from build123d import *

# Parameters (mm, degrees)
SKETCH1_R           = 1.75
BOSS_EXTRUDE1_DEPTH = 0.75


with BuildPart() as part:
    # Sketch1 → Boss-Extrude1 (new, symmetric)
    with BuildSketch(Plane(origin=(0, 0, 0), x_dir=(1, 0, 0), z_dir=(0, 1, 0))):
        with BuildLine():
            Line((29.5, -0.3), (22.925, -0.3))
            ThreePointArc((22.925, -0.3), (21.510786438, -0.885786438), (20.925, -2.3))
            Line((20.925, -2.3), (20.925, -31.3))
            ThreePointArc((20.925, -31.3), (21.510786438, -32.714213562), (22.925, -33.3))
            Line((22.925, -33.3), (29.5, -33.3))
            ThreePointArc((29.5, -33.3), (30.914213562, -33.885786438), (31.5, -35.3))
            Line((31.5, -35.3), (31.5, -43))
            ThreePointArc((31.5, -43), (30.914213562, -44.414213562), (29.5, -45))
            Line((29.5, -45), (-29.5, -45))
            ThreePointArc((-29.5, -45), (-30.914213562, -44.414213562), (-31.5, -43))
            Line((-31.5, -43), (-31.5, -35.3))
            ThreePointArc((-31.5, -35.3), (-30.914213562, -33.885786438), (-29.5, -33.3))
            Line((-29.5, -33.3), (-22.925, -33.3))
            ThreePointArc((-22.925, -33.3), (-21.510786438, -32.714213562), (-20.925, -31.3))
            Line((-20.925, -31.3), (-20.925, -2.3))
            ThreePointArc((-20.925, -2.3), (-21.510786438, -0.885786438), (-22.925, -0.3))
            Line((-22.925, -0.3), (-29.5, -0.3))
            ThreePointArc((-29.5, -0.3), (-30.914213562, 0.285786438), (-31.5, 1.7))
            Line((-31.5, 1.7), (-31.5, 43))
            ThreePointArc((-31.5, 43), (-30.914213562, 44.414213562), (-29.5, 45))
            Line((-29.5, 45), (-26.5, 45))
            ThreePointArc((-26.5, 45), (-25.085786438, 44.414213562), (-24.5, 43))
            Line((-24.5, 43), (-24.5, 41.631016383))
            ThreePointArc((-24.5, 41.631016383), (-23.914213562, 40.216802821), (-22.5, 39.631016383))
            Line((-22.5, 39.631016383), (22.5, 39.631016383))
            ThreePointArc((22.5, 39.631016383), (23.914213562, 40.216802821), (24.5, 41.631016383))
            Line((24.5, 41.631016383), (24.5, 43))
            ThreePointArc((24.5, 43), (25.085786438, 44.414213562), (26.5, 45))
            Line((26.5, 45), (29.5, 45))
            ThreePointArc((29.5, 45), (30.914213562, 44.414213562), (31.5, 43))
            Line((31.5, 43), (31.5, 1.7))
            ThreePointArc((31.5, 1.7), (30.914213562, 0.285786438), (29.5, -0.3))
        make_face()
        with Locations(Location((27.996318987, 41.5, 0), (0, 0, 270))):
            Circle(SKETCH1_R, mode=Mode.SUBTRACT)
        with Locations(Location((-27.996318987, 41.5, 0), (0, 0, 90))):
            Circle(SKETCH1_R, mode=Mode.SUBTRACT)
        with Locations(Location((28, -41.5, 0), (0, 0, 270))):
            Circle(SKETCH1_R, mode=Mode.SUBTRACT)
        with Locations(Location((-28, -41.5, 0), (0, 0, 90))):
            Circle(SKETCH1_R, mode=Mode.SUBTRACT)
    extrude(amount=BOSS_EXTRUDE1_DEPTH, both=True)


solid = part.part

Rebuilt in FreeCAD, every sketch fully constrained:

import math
import FreeCAD as App
import Part
import Sketcher

doc = App.newDocument("Part")
body = doc.addObject("PartDesign::Body", "Body")

sketch1 = doc.addObject("Sketcher::SketchObject", "Sketch")
body.addObject(sketch1)
sketch1.AttachmentSupport = (doc.XZ_Plane, [""])
sketch1.MapMode = "FlatFace"
sketch1.addGeometry(Part.LineSegment(App.Vector(22.9, 0.3, 0), App.Vector(29.5, 0.3, 0)), False)
sketch1.addGeometry(Part.ArcOfCircle(Part.Circle(App.Vector(29.5, -1.7, 0), App.Vector(0, 0, 1), 2), math.radians(0), math.radians(90)), False)
sketch1.addGeometry(Part.LineSegment(App.Vector(31.5, -1.7, 0), App.Vector(31.5, -43, 0)), False)
sketch1.addGeometry(Part.ArcOfCircle(Part.Circle(App.Vector(29.5, -43, 0), App.Vector(0, 0, 1), 2), math.radians(-90), math.radians(0)), False)
sketch1.addGeometry(Part.LineSegment(App.Vector(29.5, -45, 0), App.Vector(26.5, -45, 0)), False)
sketch1.addGeometry(Part.ArcOfCircle(Part.Circle(App.Vector(26.5, -43, 0), App.Vector(0, 0, 1), 2), math.radians(-180), math.radians(-90)), False)
sketch1.addGeometry(Part.LineSegment(App.Vector(24.5, -43, 0), App.Vector(24.5, -41.6, 0)), False)
sketch1.addGeometry(Part.ArcOfCircle(Part.Circle(App.Vector(22.5, -41.6, 0), App.Vector(0, 0, 1), 2), math.radians(0), math.radians(90)), False)
sketch1.addGeometry(Part.LineSegment(App.Vector(22.5, -39.6, 0), App.Vector(-22.5, -39.6, 0)), False)
sketch1.addGeometry(Part.ArcOfCircle(Part.Circle(App.Vector(-22.5, -41.6, 0), App.Vector(0, 0, 1), 2), math.radians(90), math.radians(180)), False)
sketch1.addGeometry(Part.LineSegment(App.Vector(-24.5, -41.6, 0), App.Vector(-24.5, -43, 0)), False)
sketch1.addGeometry(Part.ArcOfCircle(Part.Circle(App.Vector(-26.5, -43, 0), App.Vector(0, 0, 1), 2), math.radians(-90), math.radians(0)), False)
sketch1.addGeometry(Part.LineSegment(App.Vector(-26.5, -45, 0), App.Vector(-29.5, -45, 0)), False)
sketch1.addGeometry(Part.ArcOfCircle(Part.Circle(App.Vector(-29.5, -43, 0), App.Vector(0, 0, 1), 2), math.radians(-180), math.radians(-90)), False)
sketch1.addGeometry(Part.LineSegment(App.Vector(-31.5, -43, 0), App.Vector(-31.5, -1.7, 0)), False)
sketch1.addGeometry(Part.ArcOfCircle(Part.Circle(App.Vector(-29.5, -1.7, 0), App.Vector(0, 0, 1), 2), math.radians(90), math.radians(180)), False)
sketch1.addGeometry(Part.LineSegment(App.Vector(-29.5, 0.3, 0), App.Vector(-22.9, 0.3, 0)), False)
sketch1.addGeometry(Part.ArcOfCircle(Part.Circle(App.Vector(-22.9, 2.3, 0), App.Vector(0, 0, 1), 2), math.radians(-90), math.radians(0)), False)
sketch1.addGeometry(Part.LineSegment(App.Vector(-20.9, 2.3, 0), App.Vector(-20.9, 31.3, 0)), False)
sketch1.addGeometry(Part.ArcOfCircle(Part.Circle(App.Vector(-22.9, 31.3, 0), App.Vector(0, 0, 1), 2), math.radians(0), math.radians(90)), False)
sketch1.addGeometry(Part.LineSegment(App.Vector(-22.9, 33.3, 0), App.Vector(-29.5, 33.3, 0)), False)
sketch1.addGeometry(Part.ArcOfCircle(Part.Circle(App.Vector(-29.5, 35.3, 0), App.Vector(0, 0, 1), 2), math.radians(-180), math.radians(-90)), False)
sketch1.addGeometry(Part.LineSegment(App.Vector(-31.5, 35.3, 0), App.Vector(-31.5, 43, 0)), False)
sketch1.addGeometry(Part.ArcOfCircle(Part.Circle(App.Vector(-29.5, 43, 0), App.Vector(0, 0, 1), 2), math.radians(90), math.radians(180)), False)
sketch1.addGeometry(Part.LineSegment(App.Vector(-29.5, 45, 0), App.Vector(29.5, 45, 0)), False)
sketch1.addGeometry(Part.ArcOfCircle(Part.Circle(App.Vector(29.5, 43, 0), App.Vector(0, 0, 1), 2), math.radians(0), math.radians(90)), False)
sketch1.addGeometry(Part.LineSegment(App.Vector(31.5, 43, 0), App.Vector(31.5, 35.3, 0)), False)
sketch1.addGeometry(Part.ArcOfCircle(Part.Circle(App.Vector(29.5, 35.3, 0), App.Vector(0, 0, 1), 2), math.radians(-90), math.radians(0)), False)
sketch1.addGeometry(Part.LineSegment(App.Vector(29.5, 33.3, 0), App.Vector(22.9, 33.3, 0)), False)
sketch1.addGeometry(Part.ArcOfCircle(Part.Circle(App.Vector(22.9, 31.3, 0), App.Vector(0, 0, 1), 2), math.radians(90), math.radians(180)), False)
sketch1.addGeometry(Part.LineSegment(App.Vector(20.9, 31.3, 0), App.Vector(20.9, 2.3, 0)), False)
sketch1.addGeometry(Part.ArcOfCircle(Part.Circle(App.Vector(22.9, 2.3, 0), App.Vector(0, 0, 1), 2), math.radians(-180), math.radians(-90)), False)
sketch1.addGeometry(Part.Circle(App.Vector(28, 41.5, 0), App.Vector(0, 0, 1), 1.8), False)
sketch1.addGeometry(Part.Circle(App.Vector(-28, 41.5, 0), App.Vector(0, 0, 1), 1.8), False)
sketch1.addGeometry(Part.Circle(App.Vector(28, -41.5, 0), App.Vector(0, 0, 1), 1.8), False)
sketch1.addGeometry(Part.Circle(App.Vector(-28, -41.5, 0), App.Vector(0, 0, 1), 1.8), False)
sketch1.addConstraint(Sketcher.Constraint("Tangent", 0, 2, 1, 2))
sketch1.addConstraint(Sketcher.Constraint("Tangent", 1, 1, 2, 1))
sketch1.addConstraint(Sketcher.Constraint("Tangent", 2, 2, 3, 2))
sketch1.addConstraint(Sketcher.Constraint("Tangent", 3, 1, 4, 1))
sketch1.addConstraint(Sketcher.Constraint("Tangent", 4, 2, 5, 2))
sketch1.addConstraint(Sketcher.Constraint("Tangent", 5, 1, 6, 1))
sketch1.addConstraint(Sketcher.Constraint("Tangent", 6, 2, 7, 1))
sketch1.addConstraint(Sketcher.Constraint("Tangent", 7, 2, 8, 1))
sketch1.addConstraint(Sketcher.Constraint("Tangent", 8, 2, 9, 1))
sketch1.addConstraint(Sketcher.Constraint("Tangent", 9, 2, 10, 1))
sketch1.addConstraint(Sketcher.Constraint("Tangent", 10, 2, 11, 2))
sketch1.addConstraint(Sketcher.Constraint("Tangent", 11, 1, 12, 1))
sketch1.addConstraint(Sketcher.Constraint("Tangent", 12, 2, 13, 2))
sketch1.addConstraint(Sketcher.Constraint("Tangent", 13, 1, 14, 1))
sketch1.addConstraint(Sketcher.Constraint("Tangent", 14, 2, 15, 2))
sketch1.addConstraint(Sketcher.Constraint("Tangent", 15, 1, 16, 1))
sketch1.addConstraint(Sketcher.Constraint("Tangent", 16, 2, 17, 1))
sketch1.addConstraint(Sketcher.Constraint("Tangent", 17, 2, 18, 1))
sketch1.addConstraint(Sketcher.Constraint("Tangent", 18, 2, 19, 1))
sketch1.addConstraint(Sketcher.Constraint("Tangent", 19, 2, 20, 1))
sketch1.addConstraint(Sketcher.Constraint("Tangent", 20, 2, 21, 2))
sketch1.addConstraint(Sketcher.Constraint("Tangent", 21, 1, 22, 1))
sketch1.addConstraint(Sketcher.Constraint("Tangent", 22, 2, 23, 2))
sketch1.addConstraint(Sketcher.Constraint("Tangent", 23, 1, 24, 1))
sketch1.addConstraint(Sketcher.Constraint("Tangent", 24, 2, 25, 2))
sketch1.addConstraint(Sketcher.Constraint("Tangent", 25, 1, 26, 1))
sketch1.addConstraint(Sketcher.Constraint("Tangent", 26, 2, 27, 2))
sketch1.addConstraint(Sketcher.Constraint("Tangent", 27, 1, 28, 1))
sketch1.addConstraint(Sketcher.Constraint("Tangent", 28, 2, 29, 1))
sketch1.addConstraint(Sketcher.Constraint("Tangent", 29, 2, 30, 1))
sketch1.addConstraint(Sketcher.Constraint("Tangent", 30, 2, 31, 1))
sketch1.addConstraint(Sketcher.Constraint("Tangent", 31, 2, 0, 1))
sketch1.addConstraint(Sketcher.Constraint("Horizontal", 0))
sketch1.addConstraint(Sketcher.Constraint("Vertical", 2))
sketch1.addConstraint(Sketcher.Constraint("Horizontal", 4))
sketch1.addConstraint(Sketcher.Constraint("Vertical", 6))
sketch1.addConstraint(Sketcher.Constraint("Horizontal", 8))
sketch1.addConstraint(Sketcher.Constraint("Vertical", 10))
sketch1.addConstraint(Sketcher.Constraint("Horizontal", 12))
sketch1.addConstraint(Sketcher.Constraint("Vertical", 14))
sketch1.addConstraint(Sketcher.Constraint("Horizontal", 16))
sketch1.addConstraint(Sketcher.Constraint("Vertical", 18))
sketch1.addConstraint(Sketcher.Constraint("Horizontal", 20))
sketch1.addConstraint(Sketcher.Constraint("Vertical", 22))
sketch1.addConstraint(Sketcher.Constraint("Horizontal", 24))
sketch1.addConstraint(Sketcher.Constraint("Vertical", 26))
sketch1.addConstraint(Sketcher.Constraint("Horizontal", 28))
sketch1.addConstraint(Sketcher.Constraint("Vertical", 30))
sketch1.addConstraint(Sketcher.Constraint("Equal", 1, 3))
sketch1.addConstraint(Sketcher.Constraint("Equal", 3, 5))
sketch1.addConstraint(Sketcher.Constraint("Equal", 5, 7))
sketch1.addConstraint(Sketcher.Constraint("Equal", 7, 9))
sketch1.addConstraint(Sketcher.Constraint("Equal", 9, 11))
sketch1.addConstraint(Sketcher.Constraint("Equal", 11, 13))
sketch1.addConstraint(Sketcher.Constraint("Equal", 13, 15))
sketch1.addConstraint(Sketcher.Constraint("Equal", 15, 17))
sketch1.addConstraint(Sketcher.Constraint("Equal", 17, 19))
sketch1.addConstraint(Sketcher.Constraint("Equal", 19, 21))
sketch1.addConstraint(Sketcher.Constraint("Equal", 21, 23))
sketch1.addConstraint(Sketcher.Constraint("Equal", 23, 25))
sketch1.addConstraint(Sketcher.Constraint("Equal", 25, 27))
sketch1.addConstraint(Sketcher.Constraint("Equal", 27, 29))
sketch1.addConstraint(Sketcher.Constraint("Equal", 29, 31))
sketch1.addConstraint(Sketcher.Constraint("Equal", 32, 33))
sketch1.addConstraint(Sketcher.Constraint("Equal", 33, 34))
sketch1.addConstraint(Sketcher.Constraint("Equal", 34, 35))
sketch1.addConstraint(Sketcher.Constraint("Symmetric", 3, 3, 23, 3, -1, 1))
sketch1.addConstraint(Sketcher.Constraint("Symmetric", 13, 3, 25, 3, -1, 1))
sketch1.addConstraint(Sketcher.Constraint("Symmetric", 1, 3, 15, 3, -2))
sketch1.addConstraint(Sketcher.Constraint("Symmetric", 19, 3, 29, 3, -2))
sketch1.addConstraint(Sketcher.Constraint("Symmetric", 32, 3, 33, 3, -2))
sketch1.addConstraint(Sketcher.Constraint("Symmetric", 34, 3, 35, 3, -2))
sketch1.addConstraint(Sketcher.Constraint("Equal", 4, 12))
sketch1.addConstraint(Sketcher.Constraint("Radius", 1, 2.0))
sketch1.addConstraint(Sketcher.Constraint("Diameter", 32, 3.5))
sketch1.addConstraint(Sketcher.Constraint("DistanceX", 4, 2, 4, 1, 3.0))
sketch1.addConstraint(Sketcher.Constraint("DistanceX", 8, 2, 8, 1, 45.0))
sketch1.addConstraint(Sketcher.Constraint("DistanceY", 18, 1, 18, 2, 29.0))
sketch1.addConstraint(Sketcher.Constraint("DistanceY", 2, 2, 2, 1, 41.3))
sketch1.addConstraint(Sketcher.Constraint("DistanceY", 22, 1, 22, 2, 7.7))
sketch1.addConstraint(Sketcher.Constraint("DistanceX", -1, 1, 32, 3, 28.0))
sketch1.addConstraint(Sketcher.Constraint("DistanceY", -1, 1, 32, 3, 41.5))
sketch1.addConstraint(Sketcher.Constraint("DistanceY", 34, 3, -1, 1, 41.5))
sketch1.addConstraint(Sketcher.Constraint("DistanceX", 0, 1, 0, 2, 6.575))
sketch1.addConstraint(Sketcher.Constraint("DistanceY", 6, 1, 6, 2, 1.368984))
sketch1.addConstraint(Sketcher.Constraint("DistanceX", -1, 1, 34, 3, 27.996319))
pad1 = doc.addObject("PartDesign::Pad", "Pad")
body.addObject(pad1)
pad1.Profile = sketch1
pad1.Length = 1.5
pad1.Midplane = True

doc.recompute()
